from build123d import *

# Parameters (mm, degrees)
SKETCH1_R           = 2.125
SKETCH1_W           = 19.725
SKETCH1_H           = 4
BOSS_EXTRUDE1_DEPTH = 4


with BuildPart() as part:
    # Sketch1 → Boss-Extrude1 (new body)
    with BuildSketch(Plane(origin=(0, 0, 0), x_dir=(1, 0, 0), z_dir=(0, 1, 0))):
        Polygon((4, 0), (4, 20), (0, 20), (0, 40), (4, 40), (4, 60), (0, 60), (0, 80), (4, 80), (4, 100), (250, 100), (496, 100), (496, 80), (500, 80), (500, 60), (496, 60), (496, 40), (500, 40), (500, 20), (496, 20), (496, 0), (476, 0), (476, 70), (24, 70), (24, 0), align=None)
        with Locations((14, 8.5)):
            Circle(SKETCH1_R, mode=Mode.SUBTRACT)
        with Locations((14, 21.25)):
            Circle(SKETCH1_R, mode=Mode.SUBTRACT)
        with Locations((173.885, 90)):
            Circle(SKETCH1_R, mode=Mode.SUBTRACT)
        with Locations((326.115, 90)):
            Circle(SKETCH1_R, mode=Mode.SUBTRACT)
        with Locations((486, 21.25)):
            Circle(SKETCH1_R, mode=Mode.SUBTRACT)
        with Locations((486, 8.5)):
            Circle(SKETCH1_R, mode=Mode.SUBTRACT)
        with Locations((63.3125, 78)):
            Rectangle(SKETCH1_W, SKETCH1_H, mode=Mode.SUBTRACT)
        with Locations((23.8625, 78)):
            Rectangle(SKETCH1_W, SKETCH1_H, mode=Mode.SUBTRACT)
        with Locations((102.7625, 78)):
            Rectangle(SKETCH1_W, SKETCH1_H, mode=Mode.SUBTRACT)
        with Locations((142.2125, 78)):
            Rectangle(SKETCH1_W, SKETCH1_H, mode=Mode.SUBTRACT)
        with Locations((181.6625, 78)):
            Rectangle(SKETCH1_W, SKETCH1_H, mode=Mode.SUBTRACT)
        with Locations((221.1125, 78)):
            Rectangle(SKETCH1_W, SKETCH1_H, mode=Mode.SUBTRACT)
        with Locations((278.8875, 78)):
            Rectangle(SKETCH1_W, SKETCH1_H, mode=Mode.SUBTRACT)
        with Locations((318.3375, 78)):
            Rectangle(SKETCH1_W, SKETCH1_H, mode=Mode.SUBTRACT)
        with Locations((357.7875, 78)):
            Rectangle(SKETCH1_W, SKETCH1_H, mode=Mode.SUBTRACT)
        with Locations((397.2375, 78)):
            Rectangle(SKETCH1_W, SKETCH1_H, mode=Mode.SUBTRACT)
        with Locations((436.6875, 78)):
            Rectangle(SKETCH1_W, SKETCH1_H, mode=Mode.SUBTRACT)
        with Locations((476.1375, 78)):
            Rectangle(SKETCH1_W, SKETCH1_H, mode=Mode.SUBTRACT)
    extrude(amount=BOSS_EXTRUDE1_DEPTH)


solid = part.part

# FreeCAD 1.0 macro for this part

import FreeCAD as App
import Part
import Sketcher
from FreeCAD import Vector


def add_polygon(sketch, points):
    """Adds a closed chain of lines whose ends are joined by coincident constraints."""
    first, n = sketch.GeometryCount, len(points)
    for a, b in zip(points, points[1:] + points[:1]):
        sketch.addGeometry(Part.LineSegment(App.Vector(*a, 0), App.Vector(*b, 0)), False)
    for i in range(n):
        sketch.addConstraint(Sketcher.Constraint("Coincident", first + i, 2, first + (i + 1) % n, 1))

doc = App.newDocument("Part")
body = doc.addObject("PartDesign::Body", "Body")

# Sketch on XZ plane
sketch1 = doc.addObject("Sketcher::SketchObject", "Sketch")
body.addObject(sketch1)
sketch1.AttachmentSupport = (doc.XZ_Plane, [""])
sketch1.MapMode = "FlatFace"
add_polygon(sketch1, [(4, -20), (4, 0), (24, 0), (24, -70), (476, -70), (476, 0), (496, 0), (496, -20), (500, -20), (500, -40), (496, -40), (496, -60), (500, -60), (500, -80), (496, -80), (496, -100), (4, -100), (4, -80), (0, -80), (0, -60), (4, -60), (4, -40), (0, -40), (0, -20)])  # lines 0-23
sketch1.addGeometry(Part.Circle(Vector(486, -8.5, 0), Vector(0, 0, 1), 2.125), False)  # 24
sketch1.addGeometry(Part.Circle(Vector(486, -21.25, 0), Vector(0, 0, 1), 2.125), False)  # 25
sketch1.addGeometry(Part.Circle(Vector(14, -8.5, 0), Vector(0, 0, 1), 2.125), False)  # 26
sketch1.addGeometry(Part.Circle(Vector(14, -21.25, 0), Vector(0, 0, 1), 2.125), False)  # 27
add_polygon(sketch1, [(466.275, -76), (466.275, -80), (486, -80), (486, -76)])  # lines 28-31
add_polygon(sketch1, [(426.825, -76), (426.825, -80), (446.55, -80), (446.55, -76)])  # lines 32-35
add_polygon(sketch1, [(387.375, -76), (387.375, -80), (407.1, -80), (407.1, -76)])  # lines 36-39
add_polygon(sketch1, [(347.925, -76), (347.925, -80), (367.65, -80), (367.65, -76)])  # lines 40-43
add_polygon(sketch1, [(308.475, -76), (308.475, -80), (328.2, -80), (328.2, -76)])  # lines 44-47
add_polygon(sketch1, [(269.025, -76), (269.025, -80), (288.75, -80), (288.75, -76)])  # lines 48-51
sketch1.addGeometry(Part.Circle(Vector(326.115, -90, 0), Vector(0, 0, 1), 2.125), False)  # 52
add_polygon(sketch1, [(211.25, -76), (211.25, -80), (230.975, -80), (230.975, -76)])  # lines 53-56
add_polygon(sketch1, [(171.8, -76), (171.8, -80), (191.525, -80), (191.525, -76)])  # lines 57-60
add_polygon(sketch1, [(132.35, -76), (132.35, -80), (152.075, -80), (152.075, -76)])  # lines 61-64
sketch1.addGeometry(Part.Circle(Vector(173.885, -90, 0), Vector(0, 0, 1), 2.125), False)  # 65
add_polygon(sketch1, [(92.9, -76), (92.9, -80), (112.625, -80), (112.625, -76)])  # lines 66-69
add_polygon(sketch1, [(53.45, -76), (53.45, -80), (73.175, -80), (73.175, -76)])  # lines 70-73
add_polygon(sketch1, [(14, -76), (14, -80), (33.725, -80), (33.725, -76)])  # lines 74-77
sketch1.addConstraint(Sketcher.Constraint("Vertical", 0))
sketch1.addConstraint(Sketcher.Constraint("Horizontal", 1))
sketch1.addConstraint(Sketcher.Constraint("Vertical", 2))
sketch1.addConstraint(Sketcher.Constraint("Horizontal", 3))
sketch1.addConstraint(Sketcher.Constraint("Vertical", 4))
sketch1.addConstraint(Sketcher.Constraint("Horizontal", 5))
sketch1.addConstraint(Sketcher.Constraint("Vertical", 6))
sketch1.addConstraint(Sketcher.Constraint("Horizontal", 7))
sketch1.addConstraint(Sketcher.Constraint("Vertical", 8))
sketch1.addConstraint(Sketcher.Constraint("Horizontal", 9))
sketch1.addConstraint(Sketcher.Constraint("Vertical", 10))
sketch1.addConstraint(Sketcher.Constraint("Horizontal", 11))
sketch1.addConstraint(Sketcher.Constraint("Vertical", 12))
sketch1.addConstraint(Sketcher.Constraint("Horizontal", 13))
sketch1.addConstraint(Sketcher.Constraint("Vertical", 14))
sketch1.addConstraint(Sketcher.Constraint("Horizontal", 15))
sketch1.addConstraint(Sketcher.Constraint("Vertical", 16))
sketch1.addConstraint(Sketcher.Constraint("Horizontal", 17))
sketch1.addConstraint(Sketcher.Constraint("Vertical", 18))
sketch1.addConstraint(Sketcher.Constraint("Horizontal", 19))
sketch1.addConstraint(Sketcher.Constraint("Vertical", 20))
sketch1.addConstraint(Sketcher.Constraint("Horizontal", 21))
sketch1.addConstraint(Sketcher.Constraint("Vertical", 22))
sketch1.addConstraint(Sketcher.Constraint("Horizontal", 23))
sketch1.addConstraint(Sketcher.Constraint("Vertical", 28))
sketch1.addConstraint(Sketcher.Constraint("Horizontal", 29))
sketch1.addConstraint(Sketcher.Constraint("Vertical", 30))
sketch1.addConstraint(Sketcher.Constraint("Horizontal", 31))
sketch1.addConstraint(Sketcher.Constraint("Vertical", 32))
sketch1.addConstraint(Sketcher.Constraint("Horizontal", 33))
sketch1.addConstraint(Sketcher.Constraint("Vertical", 34))
sketch1.addConstraint(Sketcher.Constraint("Horizontal", 35))
sketch1.addConstraint(Sketcher.Constraint("Vertical", 36))
sketch1.addConstraint(Sketcher.Constraint("Horizontal", 37))
sketch1.addConstraint(Sketcher.Constraint("Vertical", 38))
sketch1.addConstraint(Sketcher.Constraint("Horizontal", 39))
sketch1.addConstraint(Sketcher.Constraint("Vertical", 40))
sketch1.addConstraint(Sketcher.Constraint("Horizontal", 41))
sketch1.addConstraint(Sketcher.Constraint("Vertical", 42))
sketch1.addConstraint(Sketcher.Constraint("Horizontal", 43))
sketch1.addConstraint(Sketcher.Constraint("Vertical", 44))
sketch1.addConstraint(Sketcher.Constraint("Horizontal", 45))
sketch1.addConstraint(Sketcher.Constraint("Vertical", 46))
sketch1.addConstraint(Sketcher.Constraint("Horizontal", 47))
sketch1.addConstraint(Sketcher.Constraint("Vertical", 48))
sketch1.addConstraint(Sketcher.Constraint("Horizontal", 49))
sketch1.addConstraint(Sketcher.Constraint("Vertical", 50))
sketch1.addConstraint(Sketcher.Constraint("Horizontal", 51))
sketch1.addConstraint(Sketcher.Constraint("Vertical", 53))
sketch1.addConstraint(Sketcher.Constraint("Horizontal", 54))
sketch1.addConstraint(Sketcher.Constraint("Vertical", 55))
sketch1.addConstraint(Sketcher.Constraint("Horizontal", 56))
sketch1.addConstraint(Sketcher.Constraint("Vertical", 57))
sketch1.addConstraint(Sketcher.Constraint("Horizontal", 58))
sketch1.addConstraint(Sketcher.Constraint("Vertical", 59))
sketch1.addConstraint(Sketcher.Constraint("Horizontal", 60))
sketch1.addConstraint(Sketcher.Constraint("Vertical", 61))
sketch1.addConstraint(Sketcher.Constraint("Horizontal", 62))
sketch1.addConstraint(Sketcher.Constraint("Vertical", 63))
sketch1.addConstraint(Sketcher.Constraint("Horizontal", 64))
sketch1.addConstraint(Sketcher.Constraint("Vertical", 66))
sketch1.addConstraint(Sketcher.Constraint("Horizontal", 67))
sketch1.addConstraint(Sketcher.Constraint("Vertical", 68))
sketch1.addConstraint(Sketcher.Constraint("Horizontal", 69))
sketch1.addConstraint(Sketcher.Constraint("Vertical", 70))
sketch1.addConstraint(Sketcher.Constraint("Horizontal", 71))
sketch1.addConstraint(Sketcher.Constraint("Vertical", 72))
sketch1.addConstraint(Sketcher.Constraint("Horizontal", 73))
sketch1.addConstraint(Sketcher.Constraint("Vertical", 74))
sketch1.addConstraint(Sketcher.Constraint("Horizontal", 75))
sketch1.addConstraint(Sketcher.Constraint("Vertical", 76))
sketch1.addConstraint(Sketcher.Constraint("Horizontal", 77))
sketch1.addConstraint(Sketcher.Constraint("Equal", 24, 25))
sketch1.addConstraint(Sketcher.Constraint("Equal", 25, 26))
sketch1.addConstraint(Sketcher.Constraint("Equal", 26, 27))
sketch1.addConstraint(Sketcher.Constraint("Equal", 27, 52))
sketch1.addConstraint(Sketcher.Constraint("Equal", 52, 65))
sketch1.addConstraint(Sketcher.Constraint("PointOnObject", 0, 2, -1))
sketch1.addConstraint(Sketcher.Constraint("PointOnObject", 4, 2, -1))
sketch1.addConstraint(Sketcher.Constraint("PointOnObject", 17, 2, -2))
sketch1.addConstraint(Sketcher.Constraint("PointOnObject", 21, 2, -2))
sketch1.addConstraint(Sketcher.Constraint("Horizontal", 24, 3, 26, 3))
sketch1.addConstraint(Sketcher.Constraint("Horizontal", 25, 3, 27, 3))
sketch1.addConstraint(Sketcher.Constraint("Horizontal", 52, 3, 65, 3))
sketch1.addConstraint(Sketcher.Constraint("Horizontal", 13, 2, 16, 2))
sketch1.addConstraint(Sketcher.Constraint("Horizontal", 11, 2, 18, 2))
sketch1.addConstraint(Sketcher.Constraint("Horizontal", 9, 2, 20, 2))
sketch1.addConstraint(Sketcher.Constraint("Horizontal", 7, 2, 22, 2))
sketch1.addConstraint(Sketcher.Constraint("Horizontal", 17, 2, 28, 2))
sketch1.addConstraint(Sketcher.Constraint("Horizontal", 29, 2, 32, 2))
sketch1.addConstraint(Sketcher.Constraint("Horizontal", 31, 2, 34, 2))
sketch1.addConstraint(Sketcher.Constraint("Horizontal", 33, 2, 36, 2))
sketch1.addConstraint(Sketcher.Constraint("Horizontal", 35, 2, 38, 2))
sketch1.addConstraint(Sketcher.Constraint("Horizontal", 37, 2, 40, 2))
sketch1.addConstraint(Sketcher.Constraint("Horizontal", 39, 2, 42, 2))
sketch1.addConstraint(Sketcher.Constraint("Horizontal", 41, 2, 44, 2))
sketch1.addConstraint(Sketcher.Constraint("Horizontal", 43, 2, 46, 2))
sketch1.addConstraint(Sketcher.Constraint("Horizontal", 45, 2, 48, 2))
sketch1.addConstraint(Sketcher.Constraint("Horizontal", 47, 2, 50, 2))
sketch1.addConstraint(Sketcher.Constraint("Horizontal", 49, 2, 53, 2))
sketch1.addConstraint(Sketcher.Constraint("Horizontal", 51, 2, 55, 2))
sketch1.addConstraint(Sketcher.Constraint("Horizontal", 54, 2, 57, 2))
sketch1.addConstraint(Sketcher.Constraint("Horizontal", 56, 2, 59, 2))
sketch1.addConstraint(Sketcher.Constraint("Horizontal", 58, 2, 61, 2))
sketch1.addConstraint(Sketcher.Constraint("Horizontal", 60, 2, 63, 2))
sketch1.addConstraint(Sketcher.Constraint("Horizontal", 62, 2, 66, 2))
sketch1.addConstraint(Sketcher.Constraint("Horizontal", 64, 2, 68, 2))
sketch1.addConstraint(Sketcher.Constraint("Horizontal", 67, 2, 70, 2))
sketch1.addConstraint(Sketcher.Constraint("Horizontal", 69, 2, 72, 2))
sketch1.addConstraint(Sketcher.Constraint("Horizontal", 71, 2, 74, 2))
sketch1.addConstraint(Sketcher.Constraint("Horizontal", 73, 2, 76, 2))
sketch1.addConstraint(Sketcher.Constraint("Vertical", 24, 3, 25, 3))
sketch1.addConstraint(Sketcher.Constraint("Vertical", 26, 3, 27, 3))
sketch1.addConstraint(Sketcher.Constraint("Vertical", 6, 2, 9, 2))
sketch1.addConstraint(Sketcher.Constraint("Vertical", 8, 2, 11, 2))
sketch1.addConstraint(Sketcher.Constraint("Vertical", 10, 2, 13, 2))
sketch1.addConstraint(Sketcher.Constraint("Vertical", 0, 2, 15, 2))
sketch1.addConstraint(Sketcher.Constraint("Vertical", 16, 2, 19, 2))
sketch1.addConstraint(Sketcher.Constraint("Vertical", 25, 3, 29, 2))
sketch1.addConstraint(Sketcher.Constraint("Vertical", 27, 3, 74, 2))
sketch1.addConstraint(Sketcher.Constraint("Equal", 1, 5))
sketch1.addConstraint(Sketcher.Constraint("Equal", 13, 17))
sketch1.addConstraint(Sketcher.Constraint("Equal", 31, 33))
sketch1.addConstraint(Sketcher.Constraint("Equal", 35, 37))
sketch1.addConstraint(Sketcher.Constraint("Equal", 39, 41))
sketch1.addConstraint(Sketcher.Constraint("Equal", 43, 45))
sketch1.addConstraint(Sketcher.Constraint("Equal", 47, 49))
sketch1.addConstraint(Sketcher.Constraint("Equal", 51, 54))
sketch1.addConstraint(Sketcher.Constraint("Equal", 56, 58))
sketch1.addConstraint(Sketcher.Constraint("Equal", 60, 62))
sketch1.addConstraint(Sketcher.Constraint("Equal", 64, 67))
sketch1.addConstraint(Sketcher.Constraint("Equal", 69, 71))
sketch1.addConstraint(Sketcher.Constraint("Equal", 73, 75))
sketch1.addConstraint(Sketcher.Constraint("Equal", 5, 0))
sketch1.addConstraint(Sketcher.Constraint("Equal", 6, 8))
sketch1.addConstraint(Sketcher.Constraint("Equal", 8, 10))
sketch1.addConstraint(Sketcher.Constraint("Equal", 10, 12))
sketch1.addConstraint(Sketcher.Constraint("Equal", 12, 14))
sketch1.addConstraint(Sketcher.Constraint("Equal", 23, 28))
sketch1.addConstraint(Sketcher.Constraint("Diameter", 24, 4.25))
sketch1.addConstraint(Sketcher.Constraint("DistanceX", 1, 1, 1, 2, 20.0))
sketch1.addConstraint(Sketcher.Constraint("DistanceX", 3, 1, 3, 2, 452.0))
sketch1.addConstraint(Sketcher.Constraint("DistanceX", 7, 1, 7, 2, 4.0))
sketch1.addConstraint(Sketcher.Constraint("DistanceY", 2, 2, 2, 1, 70.0))
sketch1.addConstraint(Sketcher.Constraint("DistanceX", -1, 1, 24, 3, 486.0))
sketch1.addConstraint(Sketcher.Constraint("DistanceX", -1, 1, 26, 3, 14.0))
sketch1.addConstraint(Sketcher.Constraint("DistanceY", 52, 3, -1, 1, 90.0))
sketch1.addConstraint(Sketcher.Constraint("DistanceY", 24, 3, -1, 1, 8.5))
sketch1.addConstraint(Sketcher.Constraint("DistanceX", -1, 1, 37, 2, 407.1))
sketch1.addConstraint(Sketcher.Constraint("DistanceX", -1, 1, 45, 2, 328.2))
sketch1.addConstraint(Sketcher.Constraint("DistanceX", -1, 1, 57, 2, 171.8))
sketch1.addConstraint(Sketcher.Constraint("DistanceX", -1, 1, 66, 2, 92.9))
sketch1.addConstraint(Sketcher.Constraint("DistanceX", 29, 1, 29, 2, 19.725))
sketch1.addConstraint(Sketcher.Constraint("DistanceY", 25, 3, -1, 1, 21.25))
sketch1.addConstraint(Sketcher.Constraint("DistanceX", -1, 1, 33, 2, 446.55))
sketch1.addConstraint(Sketcher.Constraint("DistanceX", -1, 1, 41, 2, 367.65))
sketch1.addConstraint(Sketcher.Constraint("DistanceX", -1, 1, 49, 2, 288.75))
sketch1.addConstraint(Sketcher.Constraint("DistanceX", -1, 1, 53, 2, 211.25))
sketch1.addConstraint(Sketcher.Constraint("DistanceX", -1, 1, 61, 2, 132.35))
sketch1.addConstraint(Sketcher.Constraint("DistanceX", -1, 1, 70, 2, 53.45))
sketch1.addConstraint(Sketcher.Constraint("DistanceX", -1, 1, 52, 3, 326.115))
sketch1.addConstraint(Sketcher.Constraint("DistanceX", -1, 1, 65, 3, 173.885))
pad1 = doc.addObject("PartDesign::Pad", "Pad")
body.addObject(pad1)
pad1.Profile = sketch1
pad1.Length = 4
pad1.Reversed = True

doc.recompute()
